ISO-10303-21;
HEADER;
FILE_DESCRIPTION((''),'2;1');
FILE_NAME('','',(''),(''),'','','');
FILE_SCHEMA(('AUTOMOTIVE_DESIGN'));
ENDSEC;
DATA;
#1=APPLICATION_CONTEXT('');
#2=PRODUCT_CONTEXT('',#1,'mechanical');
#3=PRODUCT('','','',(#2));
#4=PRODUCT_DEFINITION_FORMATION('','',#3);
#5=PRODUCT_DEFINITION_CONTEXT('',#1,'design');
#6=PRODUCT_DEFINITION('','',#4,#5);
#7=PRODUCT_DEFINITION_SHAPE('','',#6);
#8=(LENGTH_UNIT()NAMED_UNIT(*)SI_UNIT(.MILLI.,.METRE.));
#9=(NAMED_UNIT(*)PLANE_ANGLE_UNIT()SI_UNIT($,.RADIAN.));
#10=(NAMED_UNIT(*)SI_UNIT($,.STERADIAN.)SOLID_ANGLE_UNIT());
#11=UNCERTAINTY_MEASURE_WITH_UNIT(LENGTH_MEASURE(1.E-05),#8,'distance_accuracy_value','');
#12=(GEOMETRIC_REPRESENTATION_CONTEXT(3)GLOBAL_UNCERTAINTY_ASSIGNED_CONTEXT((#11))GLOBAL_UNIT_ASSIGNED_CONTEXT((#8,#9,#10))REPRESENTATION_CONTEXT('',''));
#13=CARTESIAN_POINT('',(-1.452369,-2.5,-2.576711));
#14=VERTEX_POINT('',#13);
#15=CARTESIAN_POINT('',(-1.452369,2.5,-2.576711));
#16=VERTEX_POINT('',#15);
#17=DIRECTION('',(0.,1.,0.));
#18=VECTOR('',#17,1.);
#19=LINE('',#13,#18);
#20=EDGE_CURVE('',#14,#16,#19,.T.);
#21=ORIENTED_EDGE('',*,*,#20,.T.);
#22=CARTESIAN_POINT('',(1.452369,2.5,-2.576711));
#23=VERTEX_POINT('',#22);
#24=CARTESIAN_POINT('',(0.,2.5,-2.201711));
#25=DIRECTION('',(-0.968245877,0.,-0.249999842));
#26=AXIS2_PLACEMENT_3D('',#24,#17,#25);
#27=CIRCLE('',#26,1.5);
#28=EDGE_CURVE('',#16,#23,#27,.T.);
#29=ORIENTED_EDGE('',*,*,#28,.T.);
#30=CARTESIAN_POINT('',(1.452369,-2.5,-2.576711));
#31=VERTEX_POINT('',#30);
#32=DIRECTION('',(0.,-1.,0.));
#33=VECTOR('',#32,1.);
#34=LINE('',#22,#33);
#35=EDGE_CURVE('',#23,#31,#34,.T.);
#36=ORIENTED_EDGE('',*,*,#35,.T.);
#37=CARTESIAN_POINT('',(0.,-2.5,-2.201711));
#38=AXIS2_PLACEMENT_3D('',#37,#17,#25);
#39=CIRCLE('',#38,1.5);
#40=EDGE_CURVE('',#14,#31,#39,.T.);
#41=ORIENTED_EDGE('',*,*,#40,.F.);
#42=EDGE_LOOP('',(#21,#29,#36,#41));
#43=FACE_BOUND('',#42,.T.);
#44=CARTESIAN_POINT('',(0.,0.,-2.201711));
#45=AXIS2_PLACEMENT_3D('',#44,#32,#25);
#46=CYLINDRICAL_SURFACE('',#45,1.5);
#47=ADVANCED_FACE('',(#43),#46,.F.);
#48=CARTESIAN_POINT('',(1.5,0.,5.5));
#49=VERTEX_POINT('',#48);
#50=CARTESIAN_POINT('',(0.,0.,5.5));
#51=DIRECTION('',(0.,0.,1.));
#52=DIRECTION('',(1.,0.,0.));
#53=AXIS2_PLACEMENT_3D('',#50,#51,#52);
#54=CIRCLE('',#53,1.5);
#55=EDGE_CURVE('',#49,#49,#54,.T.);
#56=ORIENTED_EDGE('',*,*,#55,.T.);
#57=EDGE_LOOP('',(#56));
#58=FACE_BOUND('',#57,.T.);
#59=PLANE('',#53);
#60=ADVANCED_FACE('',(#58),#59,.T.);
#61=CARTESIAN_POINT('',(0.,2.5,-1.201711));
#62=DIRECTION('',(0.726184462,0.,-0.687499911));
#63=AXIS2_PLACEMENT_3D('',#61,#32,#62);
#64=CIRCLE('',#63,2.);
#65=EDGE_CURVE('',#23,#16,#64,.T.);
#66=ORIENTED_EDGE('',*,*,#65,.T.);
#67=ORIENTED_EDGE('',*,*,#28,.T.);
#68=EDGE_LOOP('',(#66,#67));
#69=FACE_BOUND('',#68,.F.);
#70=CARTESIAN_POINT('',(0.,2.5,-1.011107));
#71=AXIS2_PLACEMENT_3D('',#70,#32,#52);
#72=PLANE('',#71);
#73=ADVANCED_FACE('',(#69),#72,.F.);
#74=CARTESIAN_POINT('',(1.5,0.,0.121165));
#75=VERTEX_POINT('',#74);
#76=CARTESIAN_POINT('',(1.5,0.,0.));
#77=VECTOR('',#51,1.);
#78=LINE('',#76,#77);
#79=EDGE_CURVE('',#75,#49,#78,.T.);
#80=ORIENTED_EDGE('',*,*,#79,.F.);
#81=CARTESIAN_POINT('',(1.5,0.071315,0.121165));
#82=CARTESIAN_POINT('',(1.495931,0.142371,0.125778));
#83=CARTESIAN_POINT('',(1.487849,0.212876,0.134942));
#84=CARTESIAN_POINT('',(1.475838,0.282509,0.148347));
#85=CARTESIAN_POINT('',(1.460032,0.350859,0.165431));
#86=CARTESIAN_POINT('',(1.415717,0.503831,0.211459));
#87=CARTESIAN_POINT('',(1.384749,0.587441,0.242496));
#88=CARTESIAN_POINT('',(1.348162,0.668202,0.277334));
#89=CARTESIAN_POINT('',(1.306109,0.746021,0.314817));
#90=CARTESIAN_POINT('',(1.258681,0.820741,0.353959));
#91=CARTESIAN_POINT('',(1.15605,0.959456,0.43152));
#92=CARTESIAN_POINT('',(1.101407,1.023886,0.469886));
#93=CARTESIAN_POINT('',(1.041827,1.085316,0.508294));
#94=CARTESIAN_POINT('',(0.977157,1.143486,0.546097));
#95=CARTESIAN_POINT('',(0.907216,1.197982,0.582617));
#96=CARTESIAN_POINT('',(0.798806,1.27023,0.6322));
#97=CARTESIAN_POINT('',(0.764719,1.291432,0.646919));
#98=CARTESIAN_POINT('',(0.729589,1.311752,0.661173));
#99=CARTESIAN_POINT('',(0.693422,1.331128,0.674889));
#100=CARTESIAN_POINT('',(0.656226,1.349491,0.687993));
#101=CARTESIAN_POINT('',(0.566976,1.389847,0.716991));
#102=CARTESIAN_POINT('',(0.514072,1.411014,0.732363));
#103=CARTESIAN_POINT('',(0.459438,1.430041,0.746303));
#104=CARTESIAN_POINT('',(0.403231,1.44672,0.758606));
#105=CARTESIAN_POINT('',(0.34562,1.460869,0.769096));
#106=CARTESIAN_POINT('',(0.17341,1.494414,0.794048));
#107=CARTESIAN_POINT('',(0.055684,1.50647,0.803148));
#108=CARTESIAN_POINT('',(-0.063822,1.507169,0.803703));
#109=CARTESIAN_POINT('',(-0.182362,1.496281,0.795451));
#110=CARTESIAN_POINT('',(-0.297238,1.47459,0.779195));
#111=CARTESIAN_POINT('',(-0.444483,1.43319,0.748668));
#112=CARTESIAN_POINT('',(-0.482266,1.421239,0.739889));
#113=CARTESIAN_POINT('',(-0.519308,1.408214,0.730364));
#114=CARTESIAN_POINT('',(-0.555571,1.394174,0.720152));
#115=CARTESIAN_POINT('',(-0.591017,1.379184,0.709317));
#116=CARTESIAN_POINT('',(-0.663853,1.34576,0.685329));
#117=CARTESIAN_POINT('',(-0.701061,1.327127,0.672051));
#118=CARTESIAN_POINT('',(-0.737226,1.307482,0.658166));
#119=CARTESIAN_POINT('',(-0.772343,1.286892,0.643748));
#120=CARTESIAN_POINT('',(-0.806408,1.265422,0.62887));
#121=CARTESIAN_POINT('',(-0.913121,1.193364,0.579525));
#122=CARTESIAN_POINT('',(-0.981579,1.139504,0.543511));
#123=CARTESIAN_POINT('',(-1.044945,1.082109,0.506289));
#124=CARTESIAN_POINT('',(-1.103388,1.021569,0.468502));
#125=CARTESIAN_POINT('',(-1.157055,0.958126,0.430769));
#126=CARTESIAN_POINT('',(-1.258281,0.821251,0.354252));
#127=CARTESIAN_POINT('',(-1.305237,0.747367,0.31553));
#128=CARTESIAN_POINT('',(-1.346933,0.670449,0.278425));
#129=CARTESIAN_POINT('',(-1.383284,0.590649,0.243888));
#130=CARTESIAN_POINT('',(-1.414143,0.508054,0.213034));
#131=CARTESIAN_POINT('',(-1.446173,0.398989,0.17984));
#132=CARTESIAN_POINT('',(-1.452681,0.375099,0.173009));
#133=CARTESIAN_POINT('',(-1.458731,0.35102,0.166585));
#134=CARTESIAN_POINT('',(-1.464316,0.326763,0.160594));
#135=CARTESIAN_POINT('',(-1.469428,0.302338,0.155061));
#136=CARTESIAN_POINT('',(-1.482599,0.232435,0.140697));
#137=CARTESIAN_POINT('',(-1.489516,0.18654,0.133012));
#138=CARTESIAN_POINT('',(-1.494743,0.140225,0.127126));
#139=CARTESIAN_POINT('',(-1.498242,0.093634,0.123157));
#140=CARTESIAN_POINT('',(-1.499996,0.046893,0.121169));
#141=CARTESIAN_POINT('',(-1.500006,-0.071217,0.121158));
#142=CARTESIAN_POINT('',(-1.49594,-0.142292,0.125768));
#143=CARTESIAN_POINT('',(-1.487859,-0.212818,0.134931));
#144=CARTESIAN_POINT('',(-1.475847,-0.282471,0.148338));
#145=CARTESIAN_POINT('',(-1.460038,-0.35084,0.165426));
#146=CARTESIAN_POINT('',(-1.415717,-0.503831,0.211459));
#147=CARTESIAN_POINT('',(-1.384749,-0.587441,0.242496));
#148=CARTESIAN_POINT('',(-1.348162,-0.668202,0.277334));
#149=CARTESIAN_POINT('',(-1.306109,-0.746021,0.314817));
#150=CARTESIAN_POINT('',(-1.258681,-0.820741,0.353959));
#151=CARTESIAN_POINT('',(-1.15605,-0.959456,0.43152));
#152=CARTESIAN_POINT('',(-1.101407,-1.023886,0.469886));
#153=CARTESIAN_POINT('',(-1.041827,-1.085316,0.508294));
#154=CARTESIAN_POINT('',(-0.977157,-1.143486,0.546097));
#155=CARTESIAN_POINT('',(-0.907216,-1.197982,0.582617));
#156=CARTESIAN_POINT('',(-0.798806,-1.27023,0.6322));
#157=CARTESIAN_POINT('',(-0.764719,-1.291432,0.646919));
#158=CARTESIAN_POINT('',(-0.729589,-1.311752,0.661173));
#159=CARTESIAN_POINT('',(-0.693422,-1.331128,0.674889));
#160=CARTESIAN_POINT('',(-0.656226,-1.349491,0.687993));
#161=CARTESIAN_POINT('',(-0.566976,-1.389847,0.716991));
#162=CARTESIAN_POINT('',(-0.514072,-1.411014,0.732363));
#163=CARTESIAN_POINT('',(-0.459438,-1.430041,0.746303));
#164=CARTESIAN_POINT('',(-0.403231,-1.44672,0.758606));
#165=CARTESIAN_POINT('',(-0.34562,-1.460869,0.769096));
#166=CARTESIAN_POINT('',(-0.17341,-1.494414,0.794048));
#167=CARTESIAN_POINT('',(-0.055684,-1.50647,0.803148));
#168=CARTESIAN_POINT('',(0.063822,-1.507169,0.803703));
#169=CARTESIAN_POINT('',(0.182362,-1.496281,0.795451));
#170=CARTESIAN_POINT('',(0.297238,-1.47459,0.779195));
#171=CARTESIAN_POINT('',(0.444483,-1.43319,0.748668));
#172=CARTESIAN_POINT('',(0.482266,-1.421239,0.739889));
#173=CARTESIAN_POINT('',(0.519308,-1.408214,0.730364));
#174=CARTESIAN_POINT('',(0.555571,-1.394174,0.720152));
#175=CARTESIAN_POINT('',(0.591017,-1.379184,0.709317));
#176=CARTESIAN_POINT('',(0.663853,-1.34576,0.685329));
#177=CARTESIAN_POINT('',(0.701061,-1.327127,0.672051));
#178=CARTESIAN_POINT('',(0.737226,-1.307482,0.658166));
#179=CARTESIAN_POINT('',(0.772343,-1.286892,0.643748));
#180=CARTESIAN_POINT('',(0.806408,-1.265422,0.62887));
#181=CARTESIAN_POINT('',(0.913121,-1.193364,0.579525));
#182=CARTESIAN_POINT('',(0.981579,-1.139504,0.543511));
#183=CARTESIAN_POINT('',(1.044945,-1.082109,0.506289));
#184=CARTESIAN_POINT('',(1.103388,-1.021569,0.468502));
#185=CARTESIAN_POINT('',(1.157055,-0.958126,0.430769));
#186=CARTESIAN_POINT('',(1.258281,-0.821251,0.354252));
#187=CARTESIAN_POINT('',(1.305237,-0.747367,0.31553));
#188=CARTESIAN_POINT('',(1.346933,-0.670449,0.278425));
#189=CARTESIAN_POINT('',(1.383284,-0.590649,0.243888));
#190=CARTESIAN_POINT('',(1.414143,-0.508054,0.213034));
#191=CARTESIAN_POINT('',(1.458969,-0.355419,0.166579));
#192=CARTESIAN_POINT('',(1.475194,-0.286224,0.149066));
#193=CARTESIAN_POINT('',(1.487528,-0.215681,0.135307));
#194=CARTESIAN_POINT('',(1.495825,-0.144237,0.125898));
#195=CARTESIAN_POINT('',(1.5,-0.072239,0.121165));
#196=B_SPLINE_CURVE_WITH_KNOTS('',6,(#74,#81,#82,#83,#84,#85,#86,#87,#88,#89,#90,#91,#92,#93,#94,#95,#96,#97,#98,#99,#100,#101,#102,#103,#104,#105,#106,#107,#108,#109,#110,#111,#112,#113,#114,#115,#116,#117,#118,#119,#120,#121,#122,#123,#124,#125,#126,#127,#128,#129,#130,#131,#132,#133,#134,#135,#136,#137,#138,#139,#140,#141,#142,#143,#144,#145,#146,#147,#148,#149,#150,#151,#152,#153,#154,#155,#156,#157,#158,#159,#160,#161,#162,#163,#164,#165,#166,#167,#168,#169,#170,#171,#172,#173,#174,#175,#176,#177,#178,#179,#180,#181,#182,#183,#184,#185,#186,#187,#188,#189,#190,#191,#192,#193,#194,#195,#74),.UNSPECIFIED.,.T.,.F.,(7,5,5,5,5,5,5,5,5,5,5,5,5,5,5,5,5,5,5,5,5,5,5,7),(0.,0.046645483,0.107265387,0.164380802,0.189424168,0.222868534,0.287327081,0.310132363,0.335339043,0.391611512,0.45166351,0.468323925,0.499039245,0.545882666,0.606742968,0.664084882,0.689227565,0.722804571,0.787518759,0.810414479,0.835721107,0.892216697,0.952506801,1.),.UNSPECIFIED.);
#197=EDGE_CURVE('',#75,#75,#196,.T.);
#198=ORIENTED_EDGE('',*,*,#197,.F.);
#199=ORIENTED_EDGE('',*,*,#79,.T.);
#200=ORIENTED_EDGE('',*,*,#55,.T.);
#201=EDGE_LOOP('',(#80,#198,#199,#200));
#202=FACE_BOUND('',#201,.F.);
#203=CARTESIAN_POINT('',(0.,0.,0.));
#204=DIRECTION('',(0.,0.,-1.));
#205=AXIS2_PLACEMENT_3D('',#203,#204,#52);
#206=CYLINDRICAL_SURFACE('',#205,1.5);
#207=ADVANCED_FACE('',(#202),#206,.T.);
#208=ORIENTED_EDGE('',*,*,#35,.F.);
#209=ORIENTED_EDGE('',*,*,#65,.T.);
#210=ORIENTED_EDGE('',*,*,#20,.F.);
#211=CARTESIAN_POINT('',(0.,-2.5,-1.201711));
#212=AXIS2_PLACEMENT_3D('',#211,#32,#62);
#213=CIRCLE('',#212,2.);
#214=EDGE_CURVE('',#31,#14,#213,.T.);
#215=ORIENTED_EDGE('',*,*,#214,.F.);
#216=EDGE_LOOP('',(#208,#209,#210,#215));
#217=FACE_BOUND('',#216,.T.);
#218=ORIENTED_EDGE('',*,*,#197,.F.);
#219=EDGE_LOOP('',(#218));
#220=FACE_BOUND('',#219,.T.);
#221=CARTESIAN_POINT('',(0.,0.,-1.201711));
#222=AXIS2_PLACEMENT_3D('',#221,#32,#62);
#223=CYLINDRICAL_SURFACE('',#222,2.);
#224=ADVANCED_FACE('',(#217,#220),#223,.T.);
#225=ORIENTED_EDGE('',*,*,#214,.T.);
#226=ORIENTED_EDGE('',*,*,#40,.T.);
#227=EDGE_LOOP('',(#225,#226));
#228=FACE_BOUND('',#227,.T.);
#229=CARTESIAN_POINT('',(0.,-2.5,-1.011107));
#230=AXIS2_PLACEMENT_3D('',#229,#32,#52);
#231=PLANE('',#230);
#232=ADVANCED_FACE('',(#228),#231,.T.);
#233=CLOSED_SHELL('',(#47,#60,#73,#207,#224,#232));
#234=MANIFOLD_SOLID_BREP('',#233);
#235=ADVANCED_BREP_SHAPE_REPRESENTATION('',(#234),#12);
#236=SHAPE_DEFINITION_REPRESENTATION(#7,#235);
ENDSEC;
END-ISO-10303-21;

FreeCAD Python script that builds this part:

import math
import FreeCAD as App
import Part
import Sketcher
from FreeCAD import Vector
Q = App.Units.Quantity

doc = App.newDocument("Part")
body = doc.addObject("PartDesign::Body", "Body")

# Sketch on XZ plane
sketch1 = body.newObject("Sketcher::SketchObject", "Sketch")
sketch1.AttachmentSupport = (doc.getObject("XZ_Plane"), [""])
sketch1.MapMode = "FlatFace"
sketch1.addGeometry([
    Part.ArcOfCircle(Part.Circle(Vector(0, -2.2, 0), Vector(0, 0, 1), 1.5), math.radians(-14), math.radians(194)),
    Part.ArcOfCircle(Part.Circle(Vector(0, -1.2, 0), Vector(0, 0, 1), 2), math.radians(-43), math.radians(223)),
], False)
sketch1.addConstraint([
    Sketcher.Constraint("Coincident", 0, 1, 1, 1),
    Sketcher.Constraint("Coincident", 1, 2, 0, 2),
    Sketcher.Constraint("Symmetric", 0, 1, 1, 2, -2),
    Sketcher.Constraint("Radius", 1, Q("2 mm")),
    Sketcher.Constraint("Radius", 0, Q("1.5 mm")),
    Sketcher.Constraint("DistanceY", 0, 3, 1, 3, Q("1 mm")),
    Sketcher.Constraint("DistanceY", 0, 3, -1, 1, Q("2.201711 mm")),
])
pad1 = body.newObject("PartDesign::Pad", "Pad")
pad1.Profile = sketch1
pad1.Length = 5
pad1.Midplane = True

# Sketch on XY plane
sketch2 = body.newObject("Sketcher::SketchObject", "Sketch001")
sketch2.AttachmentSupport = (doc.getObject("XY_Plane"), [""])
sketch2.MapMode = "FlatFace"
sketch2.addGeometry(Part.Circle(Vector(0, 0, 0), Vector(0, 0, 1), 1.5), False)
sketch2.addConstraint([
    Sketcher.Constraint("Coincident", 0, 3, -1, 1),
    Sketcher.Constraint("Diameter", 0, Q("3 mm")),
])
pad2 = body.newObject("PartDesign::Pad", "Pad001")
pad2.Profile = sketch2
pad2.Length = 5.5

doc.recompute()
